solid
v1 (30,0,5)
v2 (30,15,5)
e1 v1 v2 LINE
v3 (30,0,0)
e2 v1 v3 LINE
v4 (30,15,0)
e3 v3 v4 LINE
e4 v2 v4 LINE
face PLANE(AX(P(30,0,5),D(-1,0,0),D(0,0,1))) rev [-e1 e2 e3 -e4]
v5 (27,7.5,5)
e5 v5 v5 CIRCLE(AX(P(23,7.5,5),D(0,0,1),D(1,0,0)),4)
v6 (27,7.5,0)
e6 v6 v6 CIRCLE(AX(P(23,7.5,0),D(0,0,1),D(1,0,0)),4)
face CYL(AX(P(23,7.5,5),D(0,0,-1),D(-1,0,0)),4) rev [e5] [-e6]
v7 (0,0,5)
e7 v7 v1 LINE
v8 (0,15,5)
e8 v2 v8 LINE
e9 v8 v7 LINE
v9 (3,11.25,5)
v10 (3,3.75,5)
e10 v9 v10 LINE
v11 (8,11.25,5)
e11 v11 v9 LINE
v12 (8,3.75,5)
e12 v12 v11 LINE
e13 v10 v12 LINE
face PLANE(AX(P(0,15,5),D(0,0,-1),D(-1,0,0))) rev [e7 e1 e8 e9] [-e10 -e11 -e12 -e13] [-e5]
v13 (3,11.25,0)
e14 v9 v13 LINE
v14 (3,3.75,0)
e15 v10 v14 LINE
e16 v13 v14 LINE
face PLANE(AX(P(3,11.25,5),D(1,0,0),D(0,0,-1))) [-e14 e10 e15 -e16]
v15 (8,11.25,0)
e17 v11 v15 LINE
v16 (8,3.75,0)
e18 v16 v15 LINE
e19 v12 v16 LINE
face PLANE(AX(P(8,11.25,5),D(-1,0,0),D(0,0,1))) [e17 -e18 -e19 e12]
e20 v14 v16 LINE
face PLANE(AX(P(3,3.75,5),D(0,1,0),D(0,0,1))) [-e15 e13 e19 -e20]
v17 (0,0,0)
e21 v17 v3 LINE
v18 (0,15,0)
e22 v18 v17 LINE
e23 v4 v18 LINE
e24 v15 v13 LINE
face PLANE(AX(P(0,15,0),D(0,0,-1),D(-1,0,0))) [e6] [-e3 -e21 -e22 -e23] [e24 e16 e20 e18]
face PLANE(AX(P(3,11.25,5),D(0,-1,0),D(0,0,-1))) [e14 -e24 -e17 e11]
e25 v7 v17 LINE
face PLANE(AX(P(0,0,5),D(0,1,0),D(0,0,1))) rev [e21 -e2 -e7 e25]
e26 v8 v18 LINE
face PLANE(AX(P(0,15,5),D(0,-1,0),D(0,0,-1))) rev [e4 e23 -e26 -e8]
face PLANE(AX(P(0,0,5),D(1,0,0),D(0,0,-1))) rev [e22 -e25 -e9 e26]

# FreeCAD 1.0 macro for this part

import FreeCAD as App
import Part
import Sketcher

V = App.Vector
Q = App.Units.Quantity


def add_polygon(sketch, points):
    """Adds a closed chain of lines whose ends are joined by coincident constraints."""
    first, n = sketch.GeometryCount, len(points)
    for a, b in zip(points, points[1:] + points[:1]):
        sketch.addGeometry(Part.LineSegment(App.Vector(*a, 0), App.Vector(*b, 0)), False)
    for i in range(n):
        sketch.addConstraint(Sketcher.Constraint("Coincident", first + i, 2, first + (i + 1) % n, 1))

doc = App.newDocument("Part")
body = doc.addObject("PartDesign::Body", "Body")

sketch1 = body.newObject("Sketcher::SketchObject", "Sketch")
sketch1.AttachmentSupport = (doc.getObject("XY_Plane"), [""])
sketch1.MapMode = "FlatFace"
add_polygon(sketch1, [(0, 15), (0, 0), (30, 0), (30, 15)])
add_polygon(sketch1, [(8, 3.8), (3, 3.8), (3, 11.2), (8, 11.2)])
sketch1.addGeometry(Part.Circle(V(23, 7.5, 0), V(0, 0, 1), 4), False)
sketch1.addConstraint([
    Sketcher.Constraint("Vertical", 0),
    Sketcher.Constraint("Horizontal", 1),
    Sketcher.Constraint("Vertical", 2),
    Sketcher.Constraint("Horizontal", 3),
    Sketcher.Constraint("Horizontal", 4),
    Sketcher.Constraint("Vertical", 5),
    Sketcher.Constraint("Horizontal", 6),
    Sketcher.Constraint("Vertical", 7),
    Sketcher.Constraint("Coincident", 0, 2, -1, 1),
    Sketcher.Constraint("Diameter", 8, Q("8 mm")),
    Sketcher.Constraint("DistanceX", 1, 1, 1, 2, Q("30 mm")),
    Sketcher.Constraint("DistanceX", 4, 2, 4, 1, Q("5 mm")),
    Sketcher.Constraint("DistanceY", 0, 2, 0, 1, Q("15 mm")),
    Sketcher.Constraint("DistanceY", 5, 1, 5, 2, Q("7.5 mm")),
    Sketcher.Constraint("DistanceX", -1, 1, 8, 3, Q("23 mm")),
    Sketcher.Constraint("DistanceX", -1, 1, 4, 2, Q("3 mm")),
    Sketcher.Constraint("DistanceY", -1, 1, 8, 3, Q("7.5 mm")),
    Sketcher.Constraint("DistanceY", -1, 1, 4, 2, Q("3.75 mm")),
])
pad1 = body.newObject("PartDesign::Pad", "Pad")
pad1.Profile = sketch1
pad1.Length = 5

doc.recompute()
